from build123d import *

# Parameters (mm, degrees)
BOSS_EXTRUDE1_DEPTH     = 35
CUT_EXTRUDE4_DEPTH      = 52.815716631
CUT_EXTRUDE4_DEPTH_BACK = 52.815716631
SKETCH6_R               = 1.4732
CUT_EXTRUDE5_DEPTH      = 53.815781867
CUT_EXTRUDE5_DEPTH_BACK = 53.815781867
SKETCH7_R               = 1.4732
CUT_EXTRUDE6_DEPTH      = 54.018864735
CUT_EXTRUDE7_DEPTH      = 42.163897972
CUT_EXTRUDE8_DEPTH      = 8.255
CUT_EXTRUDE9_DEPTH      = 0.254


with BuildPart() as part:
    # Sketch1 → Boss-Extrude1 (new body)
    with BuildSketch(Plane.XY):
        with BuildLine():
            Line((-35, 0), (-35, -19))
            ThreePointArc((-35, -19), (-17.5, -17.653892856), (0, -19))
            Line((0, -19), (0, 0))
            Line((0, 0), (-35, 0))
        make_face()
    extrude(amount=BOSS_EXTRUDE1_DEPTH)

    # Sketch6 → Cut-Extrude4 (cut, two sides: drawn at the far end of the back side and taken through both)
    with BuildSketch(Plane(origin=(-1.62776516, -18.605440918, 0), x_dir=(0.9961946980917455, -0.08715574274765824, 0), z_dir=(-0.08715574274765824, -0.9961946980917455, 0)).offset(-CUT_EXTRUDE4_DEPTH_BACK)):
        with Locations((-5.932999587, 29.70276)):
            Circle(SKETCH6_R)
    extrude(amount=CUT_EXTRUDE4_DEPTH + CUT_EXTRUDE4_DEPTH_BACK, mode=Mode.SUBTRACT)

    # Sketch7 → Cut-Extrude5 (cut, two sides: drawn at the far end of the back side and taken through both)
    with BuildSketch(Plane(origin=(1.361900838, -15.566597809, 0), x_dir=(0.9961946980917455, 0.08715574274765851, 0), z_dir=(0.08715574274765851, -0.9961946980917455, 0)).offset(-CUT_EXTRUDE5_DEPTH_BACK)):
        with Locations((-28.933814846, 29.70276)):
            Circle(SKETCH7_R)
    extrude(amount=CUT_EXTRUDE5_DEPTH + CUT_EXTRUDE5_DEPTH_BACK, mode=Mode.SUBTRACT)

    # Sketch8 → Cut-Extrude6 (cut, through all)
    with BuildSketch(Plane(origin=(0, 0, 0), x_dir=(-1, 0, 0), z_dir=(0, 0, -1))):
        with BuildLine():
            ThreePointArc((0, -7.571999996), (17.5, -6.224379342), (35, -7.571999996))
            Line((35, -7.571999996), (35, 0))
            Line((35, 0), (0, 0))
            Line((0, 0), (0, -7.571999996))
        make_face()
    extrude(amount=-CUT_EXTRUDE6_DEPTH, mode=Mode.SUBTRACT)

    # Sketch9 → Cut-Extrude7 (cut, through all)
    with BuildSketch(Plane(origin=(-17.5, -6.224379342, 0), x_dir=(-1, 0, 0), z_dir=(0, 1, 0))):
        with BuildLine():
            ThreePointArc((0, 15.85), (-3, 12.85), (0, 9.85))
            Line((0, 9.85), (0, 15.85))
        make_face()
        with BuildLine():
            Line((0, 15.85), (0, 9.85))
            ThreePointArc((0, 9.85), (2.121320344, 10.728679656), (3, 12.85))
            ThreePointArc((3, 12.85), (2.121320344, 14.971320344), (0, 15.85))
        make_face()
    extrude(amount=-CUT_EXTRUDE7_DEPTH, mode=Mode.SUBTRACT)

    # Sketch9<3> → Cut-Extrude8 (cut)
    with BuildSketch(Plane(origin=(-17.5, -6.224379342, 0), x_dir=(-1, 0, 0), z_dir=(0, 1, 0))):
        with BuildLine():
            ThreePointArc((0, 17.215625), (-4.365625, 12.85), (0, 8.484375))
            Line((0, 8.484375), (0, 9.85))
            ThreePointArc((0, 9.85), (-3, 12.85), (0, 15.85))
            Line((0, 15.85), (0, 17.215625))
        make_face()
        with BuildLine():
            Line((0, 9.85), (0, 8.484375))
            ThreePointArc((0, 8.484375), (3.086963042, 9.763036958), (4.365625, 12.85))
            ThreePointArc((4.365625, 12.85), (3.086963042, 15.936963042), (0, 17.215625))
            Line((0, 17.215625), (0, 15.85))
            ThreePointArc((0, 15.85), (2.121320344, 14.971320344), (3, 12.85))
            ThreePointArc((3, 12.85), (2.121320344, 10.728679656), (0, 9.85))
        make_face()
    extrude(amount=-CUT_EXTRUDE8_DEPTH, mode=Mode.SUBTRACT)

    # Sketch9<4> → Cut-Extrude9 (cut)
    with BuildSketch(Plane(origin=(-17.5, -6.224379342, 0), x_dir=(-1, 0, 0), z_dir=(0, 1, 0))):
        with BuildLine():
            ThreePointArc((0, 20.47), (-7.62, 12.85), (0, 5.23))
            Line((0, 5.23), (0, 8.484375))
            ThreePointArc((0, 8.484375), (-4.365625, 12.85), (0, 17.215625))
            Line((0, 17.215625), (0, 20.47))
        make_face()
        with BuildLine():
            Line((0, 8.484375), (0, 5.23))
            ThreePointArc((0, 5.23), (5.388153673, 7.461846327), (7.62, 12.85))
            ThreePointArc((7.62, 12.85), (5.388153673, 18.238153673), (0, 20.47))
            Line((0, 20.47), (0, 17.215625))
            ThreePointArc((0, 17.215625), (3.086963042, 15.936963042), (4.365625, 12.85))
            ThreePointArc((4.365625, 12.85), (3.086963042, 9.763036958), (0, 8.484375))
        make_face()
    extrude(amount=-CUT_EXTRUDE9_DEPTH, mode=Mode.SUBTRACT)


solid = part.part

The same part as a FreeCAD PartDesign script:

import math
import FreeCAD as App
import Part
import Sketcher
from FreeCAD import Vector
Q = App.Units.Quantity

doc = App.newDocument("Part")
body = doc.addObject("PartDesign::Body", "Body")

# Sketch on XY plane
sketch1 = doc.addObject("Sketcher::SketchObject", "Sketch")
body.addObject(sketch1)
sketch1.AttachmentSupport = (doc.XY_Plane, [""])
sketch1.MapMode = "FlatFace"
sketch1.addGeometry(Part.LineSegment(Vector(-35, 0, 0), Vector(-35, -19, 0)), False)
sketch1.addGeometry(Part.ArcOfCircle(Part.Circle(Vector(-18, -132, 0), Vector(0, 0, 1), 114), math.radians(81.2), math.radians(98.8)), False)
sketch1.addGeometry(Part.LineSegment(Vector(0, -19, 0), Vector(0, 0, 0)), False)
sketch1.addGeometry(Part.LineSegment(Vector(0, 0, 0), Vector(-35, 0, 0)), False)
sketch1.addConstraint(Sketcher.Constraint("Coincident", 0, 2, 1, 2))
sketch1.addConstraint(Sketcher.Constraint("Coincident", 1, 1, 2, 1))
sketch1.addConstraint(Sketcher.Constraint("Coincident", 2, 2, 3, 1))
sketch1.addConstraint(Sketcher.Constraint("Coincident", 3, 2, 0, 1))
sketch1.addConstraint(Sketcher.Constraint("Vertical", 0))
sketch1.addConstraint(Sketcher.Constraint("Vertical", 2))
sketch1.addConstraint(Sketcher.Constraint("Horizontal", 3))
sketch1.addConstraint(Sketcher.Constraint("Coincident", 2, 2, -1, 1))
sketch1.addConstraint(Sketcher.Constraint("Horizontal", 0, 2, 1, 1))
sketch1.addConstraint(Sketcher.Constraint("Radius", 1, Q("4.505 in")))
sketch1.addConstraint(Sketcher.Constraint("DistanceX", 3, 2, 3, 1, 35.0))
sketch1.addConstraint(Sketcher.Constraint("DistanceY", 0, 2, 0, 1, 19.0))
pad1 = doc.addObject("PartDesign::Pad", "Pad")
body.addObject(pad1)
pad1.Profile = sketch1
pad1.Length = 35

# Sketch on an angled plane
sketch2 = doc.addObject("Sketcher::SketchObject", "Sketch001")
body.addObject(sketch2)
sketch2.Placement = App.Placement(Vector(-1.627765, -18.605441, 0), App.Rotation(Vector(0.996194698, -0.087155743, 0), Vector(0, 0, 1), Vector(-0.087155743, -0.996194698, 0), "ZXY"))
sketch2.addGeometry(Part.Circle(Vector(-5.9, 29.7, 0), Vector(0, 0, 1), 1.5), False)
sketch2.addConstraint(Sketcher.Constraint("Diameter", 0, Q("0.116 in")))
sketch2.addConstraint(Sketcher.Constraint("DistanceY", -1, 1, 0, 3, Q("1.1694 in")))
sketch2.addConstraint(Sketcher.Constraint("DistanceX", 0, 3, -1, 1, 5.933))
pocket1 = doc.addObject("PartDesign::Pocket", "Pocket")
body.addObject(pocket1)
pocket1.Profile = sketch2
pocket1.Type = "ThroughAll"
pocket1.Midplane = True

# Sketch on an angled plane
sketch3 = doc.addObject("Sketcher::SketchObject", "Sketch002")
body.addObject(sketch3)
sketch3.Placement = App.Placement(Vector(1.361901, -15.566598, 0), App.Rotation(Vector(0.996194698, 0.087155743, 0), Vector(0, 0, 1), Vector(0.087155743, -0.996194698, 0), "ZXY"))
sketch3.addGeometry(Part.Circle(Vector(-28.9, 29.7, 0), Vector(0, 0, 1), 1.5), False)
sketch3.addConstraint(Sketcher.Constraint("Diameter", 0, Q("0.116 in")))
sketch3.addConstraint(Sketcher.Constraint("DistanceY", -1, 1, 0, 3, Q("1.1694 in")))
sketch3.addConstraint(Sketcher.Constraint("DistanceX", 0, 3, -1, 1, 28.933815))
pocket2 = doc.addObject("PartDesign::Pocket", "Pocket001")
body.addObject(pocket2)
pocket2.Profile = sketch3
pocket2.Type = "ThroughAll"
pocket2.Midplane = True

# Sketch on XY plane
sketch4 = doc.addObject("Sketcher::SketchObject", "Sketch003")
body.addObject(sketch4)
sketch4.AttachmentSupport = (doc.XY_Plane, [""])
sketch4.MapMode = "FlatFace"
sketch4.addGeometry(Part.ArcOfCircle(Part.Circle(Vector(-18, -121, 0), Vector(0, 0, 1), 114), math.radians(81.19), math.radians(98.81)), False)
sketch4.addGeometry(Part.LineSegment(Vector(-35, -8, 0), Vector(-35, 0, 0)), False)
sketch4.addGeometry(Part.LineSegment(Vector(-35, 0, 0), Vector(0, 0, 0)), False)
sketch4.addGeometry(Part.LineSegment(Vector(0, 0, 0), Vector(0, -8, 0)), False)
sketch4.addConstraint(Sketcher.Constraint("Coincident", 0, 2, 1, 1))
sketch4.addConstraint(Sketcher.Constraint("Coincident", 1, 2, 2, 1))
sketch4.addConstraint(Sketcher.Constraint("Coincident", 2, 2, 3, 1))
sketch4.addConstraint(Sketcher.Constraint("Coincident", 3, 2, 0, 1))
sketch4.addConstraint(Sketcher.Constraint("Vertical", 1))
sketch4.addConstraint(Sketcher.Constraint("Horizontal", 2))
sketch4.addConstraint(Sketcher.Constraint("Vertical", 3))
sketch4.addConstraint(Sketcher.Constraint("Coincident", 2, 2, -1, 1))
sketch4.addConstraint(Sketcher.Constraint("Horizontal", 0, 2, 3, 2))
sketch4.addConstraint(Sketcher.Constraint("Radius", 0, Q("4.5 in")))
sketch4.addConstraint(Sketcher.Constraint("DistanceX", 2, 1, 2, 2, 35.0))
sketch4.addConstraint(Sketcher.Constraint("DistanceY", 1, 1, 1, 2, 7.572))
pocket3 = doc.addObject("PartDesign::Pocket", "Pocket002")
body.addObject(pocket3)
pocket3.Profile = sketch4
pocket3.Type = "ThroughAll"
pocket3.Reversed = True

# Sketch on XZ plane
sketch5 = doc.addObject("Sketcher::SketchObject", "Sketch004")
body.addObject(sketch5)
sketch5.AttachmentSupport = (doc.XZ_Plane, [""])
sketch5.MapMode = "FlatFace"
sketch5.AttachmentOffset = App.Placement(Vector(0, 0, 6.224379), App.Rotation())
sketch5.addGeometry(Part.ArcOfCircle(Part.Circle(Vector(-17.5, 12.8, 0), Vector(0, 0, 1), 3), math.radians(-90), math.radians(90)), False)
sketch5.addGeometry(Part.ArcOfCircle(Part.Circle(Vector(-17.5, 12.8, 0), Vector(0, 0, 1), 3), math.radians(180), math.radians(270)), False)
sketch5.addGeometry(Part.ArcOfCircle(Part.Circle(Vector(-17.5, 12.9, 0), Vector(0, 0, 1), 3), math.radians(90), math.radians(180)), False)
sketch5.addConstraint(Sketcher.Constraint("Tangent", 0, 1, 1, 2))
sketch5.addConstraint(Sketcher.Constraint("Tangent", 1, 1, 2, 2))
sketch5.addConstraint(Sketcher.Constraint("Tangent", 2, 1, 0, 2))
sketch5.addConstraint(Sketcher.Constraint("Horizontal", 2, 3, 1, 1))
sketch5.addConstraint(Sketcher.Constraint("Vertical", 2, 3, 0, 1))
sketch5.addConstraint(Sketcher.Constraint("Vertical", 0, 1, 2, 1))
sketch5.addConstraint(Sketcher.Constraint("Radius", 0, 3.0))
sketch5.addConstraint(Sketcher.Constraint("DistanceX", 0, 3, -1, 1, 17.5))
sketch5.addConstraint(Sketcher.Constraint("DistanceY", -1, 1, 0, 3, 12.85))
pocket4 = doc.addObject("PartDesign::Pocket", "Pocket003")
body.addObject(pocket4)
pocket4.Profile = sketch5
pocket4.Type = "ThroughAll"
pocket4.Reversed = True

# Sketch on XZ plane
sketch6 = doc.addObject("Sketcher::SketchObject", "Sketch005")
body.addObject(sketch6)
sketch6.AttachmentSupport = (doc.XZ_Plane, [""])
sketch6.MapMode = "FlatFace"
sketch6.AttachmentOffset = App.Placement(Vector(0, 0, 6.224379), App.Rotation())
sketch6.addGeometry(Part.ArcOfCircle(Part.Circle(Vector(-17.5, 12.8, 0), Vector(0, 0, 1), 4.4), math.radians(-90), math.radians(90)), False)
sketch6.addGeometry(Part.ArcOfCircle(Part.Circle(Vector(-17.5, 12.8, 0), Vector(0, 0, 1), 4.4), math.radians(180), math.radians(270)), False)
sketch6.addGeometry(Part.ArcOfCircle(Part.Circle(Vector(-17.5, 12.9, 0), Vector(0, 0, 1), 4.4), math.radians(90), math.radians(180)), False)
sketch6.addGeometry(Part.ArcOfCircle(Part.Circle(Vector(-17.5, 12.8, 0), Vector(0, 0, 1), 3), math.radians(-90), math.radians(90)), False)
sketch6.addGeometry(Part.ArcOfCircle(Part.Circle(Vector(-17.5, 12.9, 0), Vector(0, 0, 1), 3), math.radians(90), math.radians(180)), False)
sketch6.addGeometry(Part.ArcOfCircle(Part.Circle(Vector(-17.5, 12.8, 0), Vector(0, 0, 1), 3), math.radians(180), math.radians(270)), False)
sketch6.addConstraint(Sketcher.Constraint("Tangent", 0, 1, 1, 2))
sketch6.addConstraint(Sketcher.Constraint("Tangent", 1, 1, 2, 2))
sketch6.addConstraint(Sketcher.Constraint("Tangent", 2, 1, 0, 2))
sketch6.addConstraint(Sketcher.Constraint("Tangent", 3, 2, 4, 1))
sketch6.addConstraint(Sketcher.Constraint("Tangent", 4, 2, 5, 1))
sketch6.addConstraint(Sketcher.Constraint("Tangent", 5, 2, 3, 1))
sketch6.addConstraint(Sketcher.Constraint("Coincident", 3, 3, 0, 3))
sketch6.addConstraint(Sketcher.Constraint("Horizontal", 5, 3, 1, 1))
sketch6.addConstraint(Sketcher.Constraint("Horizontal", 1, 1, 4, 2))
sketch6.addConstraint(Sketcher.Constraint("Vertical", 5, 3, 0, 1))
sketch6.addConstraint(Sketcher.Constraint("Vertical", 0, 1, 2, 1))
sketch6.addConstraint(Sketcher.Constraint("Vertical", 2, 1, 3, 2))
sketch6.addConstraint(Sketcher.Constraint("Vertical", 3, 2, 5, 2))
sketch6.addConstraint(Sketcher.Constraint("Radius", 0, Q("0.171875 in")))
sketch6.addConstraint(Sketcher.Constraint("Radius", 3, 3.0))
sketch6.addConstraint(Sketcher.Constraint("DistanceX", 0, 3, -1, 1, 17.5))
sketch6.addConstraint(Sketcher.Constraint("DistanceY", -1, 1, 0, 3, 12.85))
pocket5 = doc.addObject("PartDesign::Pocket", "Pocket004")
body.addObject(pocket5)
pocket5.Profile = sketch6
pocket5.Length = Q("0.325 in")
pocket5.Reversed = True

# Sketch on XZ plane
sketch7 = doc.addObject("Sketcher::SketchObject", "Sketch006")
body.addObject(sketch7)
sketch7.AttachmentSupport = (doc.XZ_Plane, [""])
sketch7.MapMode = "FlatFace"
sketch7.AttachmentOffset = App.Placement(Vector(0, 0, 6.224379), App.Rotation())
sketch7.addGeometry(Part.ArcOfCircle(Part.Circle(Vector(-17.5, 12.8, 0), Vector(0, 0, 1), 7.6), math.radians(-90), math.radians(90)), False)
sketch7.addGeometry(Part.ArcOfCircle(Part.Circle(Vector(-17.5, 12.8, 0), Vector(0, 0, 1), 7.6), math.radians(180), math.radians(270)), False)
sketch7.addGeometry(Part.ArcOfCircle(Part.Circle(Vector(-17.5, 12.9, 0), Vector(0, 0, 1), 7.6), math.radians(90), math.radians(180)), False)
sketch7.addGeometry(Part.ArcOfCircle(Part.Circle(Vector(-17.5, 12.8, 0), Vector(0, 0, 1), 4.4), math.radians(-90), math.radians(90)), False)
sketch7.addGeometry(Part.ArcOfCircle(Part.Circle(Vector(-17.5, 12.9, 0), Vector(0, 0, 1), 4.4), math.radians(90), math.radians(180)), False)
sketch7.addGeometry(Part.ArcOfCircle(Part.Circle(Vector(-17.5, 12.8, 0), Vector(0, 0, 1), 4.4), math.radians(180), math.radians(270)), False)
sketch7.addConstraint(Sketcher.Constraint("Tangent", 0, 1, 1, 2))
sketch7.addConstraint(Sketcher.Constraint("Tangent", 1, 1, 2, 2))
sketch7.addConstraint(Sketcher.Constraint("Tangent", 2, 1, 0, 2))
sketch7.addConstraint(Sketcher.Constraint("Tangent", 3, 2, 4, 1))
sketch7.addConstraint(Sketcher.Constraint("Tangent", 4, 2, 5, 1))
sketch7.addConstraint(Sketcher.Constraint("Tangent", 5, 2, 3, 1))
sketch7.addConstraint(Sketcher.Constraint("Coincident", 3, 3, 0, 3))
sketch7.addConstraint(Sketcher.Constraint("Horizontal", 5, 3, 1, 1))
sketch7.addConstraint(Sketcher.Constraint("Horizontal", 1, 1, 4, 2))
sketch7.addConstraint(Sketcher.Constraint("Vertical", 5, 3, 0, 1))
sketch7.addConstraint(Sketcher.Constraint("Vertical", 0, 1, 2, 1))
sketch7.addConstraint(Sketcher.Constraint("Vertical", 2, 1, 3, 2))
sketch7.addConstraint(Sketcher.Constraint("Vertical", 3, 2, 5, 2))
sketch7.addConstraint(Sketcher.Constraint("Radius", 0, Q("0.3 in")))
sketch7.addConstraint(Sketcher.Constraint("Radius", 3, Q("0.171875 in")))
sketch7.addConstraint(Sketcher.Constraint("DistanceX", 0, 3, -1, 1, 17.5))
sketch7.addConstraint(Sketcher.Constraint("DistanceY", -1, 1, 0, 3, 12.85))
pocket6 = doc.addObject("PartDesign::Pocket", "Pocket005")
body.addObject(pocket6)
pocket6.Profile = sketch7
pocket6.Length = Q("0.01 in")
pocket6.Reversed = True

doc.recompute()
